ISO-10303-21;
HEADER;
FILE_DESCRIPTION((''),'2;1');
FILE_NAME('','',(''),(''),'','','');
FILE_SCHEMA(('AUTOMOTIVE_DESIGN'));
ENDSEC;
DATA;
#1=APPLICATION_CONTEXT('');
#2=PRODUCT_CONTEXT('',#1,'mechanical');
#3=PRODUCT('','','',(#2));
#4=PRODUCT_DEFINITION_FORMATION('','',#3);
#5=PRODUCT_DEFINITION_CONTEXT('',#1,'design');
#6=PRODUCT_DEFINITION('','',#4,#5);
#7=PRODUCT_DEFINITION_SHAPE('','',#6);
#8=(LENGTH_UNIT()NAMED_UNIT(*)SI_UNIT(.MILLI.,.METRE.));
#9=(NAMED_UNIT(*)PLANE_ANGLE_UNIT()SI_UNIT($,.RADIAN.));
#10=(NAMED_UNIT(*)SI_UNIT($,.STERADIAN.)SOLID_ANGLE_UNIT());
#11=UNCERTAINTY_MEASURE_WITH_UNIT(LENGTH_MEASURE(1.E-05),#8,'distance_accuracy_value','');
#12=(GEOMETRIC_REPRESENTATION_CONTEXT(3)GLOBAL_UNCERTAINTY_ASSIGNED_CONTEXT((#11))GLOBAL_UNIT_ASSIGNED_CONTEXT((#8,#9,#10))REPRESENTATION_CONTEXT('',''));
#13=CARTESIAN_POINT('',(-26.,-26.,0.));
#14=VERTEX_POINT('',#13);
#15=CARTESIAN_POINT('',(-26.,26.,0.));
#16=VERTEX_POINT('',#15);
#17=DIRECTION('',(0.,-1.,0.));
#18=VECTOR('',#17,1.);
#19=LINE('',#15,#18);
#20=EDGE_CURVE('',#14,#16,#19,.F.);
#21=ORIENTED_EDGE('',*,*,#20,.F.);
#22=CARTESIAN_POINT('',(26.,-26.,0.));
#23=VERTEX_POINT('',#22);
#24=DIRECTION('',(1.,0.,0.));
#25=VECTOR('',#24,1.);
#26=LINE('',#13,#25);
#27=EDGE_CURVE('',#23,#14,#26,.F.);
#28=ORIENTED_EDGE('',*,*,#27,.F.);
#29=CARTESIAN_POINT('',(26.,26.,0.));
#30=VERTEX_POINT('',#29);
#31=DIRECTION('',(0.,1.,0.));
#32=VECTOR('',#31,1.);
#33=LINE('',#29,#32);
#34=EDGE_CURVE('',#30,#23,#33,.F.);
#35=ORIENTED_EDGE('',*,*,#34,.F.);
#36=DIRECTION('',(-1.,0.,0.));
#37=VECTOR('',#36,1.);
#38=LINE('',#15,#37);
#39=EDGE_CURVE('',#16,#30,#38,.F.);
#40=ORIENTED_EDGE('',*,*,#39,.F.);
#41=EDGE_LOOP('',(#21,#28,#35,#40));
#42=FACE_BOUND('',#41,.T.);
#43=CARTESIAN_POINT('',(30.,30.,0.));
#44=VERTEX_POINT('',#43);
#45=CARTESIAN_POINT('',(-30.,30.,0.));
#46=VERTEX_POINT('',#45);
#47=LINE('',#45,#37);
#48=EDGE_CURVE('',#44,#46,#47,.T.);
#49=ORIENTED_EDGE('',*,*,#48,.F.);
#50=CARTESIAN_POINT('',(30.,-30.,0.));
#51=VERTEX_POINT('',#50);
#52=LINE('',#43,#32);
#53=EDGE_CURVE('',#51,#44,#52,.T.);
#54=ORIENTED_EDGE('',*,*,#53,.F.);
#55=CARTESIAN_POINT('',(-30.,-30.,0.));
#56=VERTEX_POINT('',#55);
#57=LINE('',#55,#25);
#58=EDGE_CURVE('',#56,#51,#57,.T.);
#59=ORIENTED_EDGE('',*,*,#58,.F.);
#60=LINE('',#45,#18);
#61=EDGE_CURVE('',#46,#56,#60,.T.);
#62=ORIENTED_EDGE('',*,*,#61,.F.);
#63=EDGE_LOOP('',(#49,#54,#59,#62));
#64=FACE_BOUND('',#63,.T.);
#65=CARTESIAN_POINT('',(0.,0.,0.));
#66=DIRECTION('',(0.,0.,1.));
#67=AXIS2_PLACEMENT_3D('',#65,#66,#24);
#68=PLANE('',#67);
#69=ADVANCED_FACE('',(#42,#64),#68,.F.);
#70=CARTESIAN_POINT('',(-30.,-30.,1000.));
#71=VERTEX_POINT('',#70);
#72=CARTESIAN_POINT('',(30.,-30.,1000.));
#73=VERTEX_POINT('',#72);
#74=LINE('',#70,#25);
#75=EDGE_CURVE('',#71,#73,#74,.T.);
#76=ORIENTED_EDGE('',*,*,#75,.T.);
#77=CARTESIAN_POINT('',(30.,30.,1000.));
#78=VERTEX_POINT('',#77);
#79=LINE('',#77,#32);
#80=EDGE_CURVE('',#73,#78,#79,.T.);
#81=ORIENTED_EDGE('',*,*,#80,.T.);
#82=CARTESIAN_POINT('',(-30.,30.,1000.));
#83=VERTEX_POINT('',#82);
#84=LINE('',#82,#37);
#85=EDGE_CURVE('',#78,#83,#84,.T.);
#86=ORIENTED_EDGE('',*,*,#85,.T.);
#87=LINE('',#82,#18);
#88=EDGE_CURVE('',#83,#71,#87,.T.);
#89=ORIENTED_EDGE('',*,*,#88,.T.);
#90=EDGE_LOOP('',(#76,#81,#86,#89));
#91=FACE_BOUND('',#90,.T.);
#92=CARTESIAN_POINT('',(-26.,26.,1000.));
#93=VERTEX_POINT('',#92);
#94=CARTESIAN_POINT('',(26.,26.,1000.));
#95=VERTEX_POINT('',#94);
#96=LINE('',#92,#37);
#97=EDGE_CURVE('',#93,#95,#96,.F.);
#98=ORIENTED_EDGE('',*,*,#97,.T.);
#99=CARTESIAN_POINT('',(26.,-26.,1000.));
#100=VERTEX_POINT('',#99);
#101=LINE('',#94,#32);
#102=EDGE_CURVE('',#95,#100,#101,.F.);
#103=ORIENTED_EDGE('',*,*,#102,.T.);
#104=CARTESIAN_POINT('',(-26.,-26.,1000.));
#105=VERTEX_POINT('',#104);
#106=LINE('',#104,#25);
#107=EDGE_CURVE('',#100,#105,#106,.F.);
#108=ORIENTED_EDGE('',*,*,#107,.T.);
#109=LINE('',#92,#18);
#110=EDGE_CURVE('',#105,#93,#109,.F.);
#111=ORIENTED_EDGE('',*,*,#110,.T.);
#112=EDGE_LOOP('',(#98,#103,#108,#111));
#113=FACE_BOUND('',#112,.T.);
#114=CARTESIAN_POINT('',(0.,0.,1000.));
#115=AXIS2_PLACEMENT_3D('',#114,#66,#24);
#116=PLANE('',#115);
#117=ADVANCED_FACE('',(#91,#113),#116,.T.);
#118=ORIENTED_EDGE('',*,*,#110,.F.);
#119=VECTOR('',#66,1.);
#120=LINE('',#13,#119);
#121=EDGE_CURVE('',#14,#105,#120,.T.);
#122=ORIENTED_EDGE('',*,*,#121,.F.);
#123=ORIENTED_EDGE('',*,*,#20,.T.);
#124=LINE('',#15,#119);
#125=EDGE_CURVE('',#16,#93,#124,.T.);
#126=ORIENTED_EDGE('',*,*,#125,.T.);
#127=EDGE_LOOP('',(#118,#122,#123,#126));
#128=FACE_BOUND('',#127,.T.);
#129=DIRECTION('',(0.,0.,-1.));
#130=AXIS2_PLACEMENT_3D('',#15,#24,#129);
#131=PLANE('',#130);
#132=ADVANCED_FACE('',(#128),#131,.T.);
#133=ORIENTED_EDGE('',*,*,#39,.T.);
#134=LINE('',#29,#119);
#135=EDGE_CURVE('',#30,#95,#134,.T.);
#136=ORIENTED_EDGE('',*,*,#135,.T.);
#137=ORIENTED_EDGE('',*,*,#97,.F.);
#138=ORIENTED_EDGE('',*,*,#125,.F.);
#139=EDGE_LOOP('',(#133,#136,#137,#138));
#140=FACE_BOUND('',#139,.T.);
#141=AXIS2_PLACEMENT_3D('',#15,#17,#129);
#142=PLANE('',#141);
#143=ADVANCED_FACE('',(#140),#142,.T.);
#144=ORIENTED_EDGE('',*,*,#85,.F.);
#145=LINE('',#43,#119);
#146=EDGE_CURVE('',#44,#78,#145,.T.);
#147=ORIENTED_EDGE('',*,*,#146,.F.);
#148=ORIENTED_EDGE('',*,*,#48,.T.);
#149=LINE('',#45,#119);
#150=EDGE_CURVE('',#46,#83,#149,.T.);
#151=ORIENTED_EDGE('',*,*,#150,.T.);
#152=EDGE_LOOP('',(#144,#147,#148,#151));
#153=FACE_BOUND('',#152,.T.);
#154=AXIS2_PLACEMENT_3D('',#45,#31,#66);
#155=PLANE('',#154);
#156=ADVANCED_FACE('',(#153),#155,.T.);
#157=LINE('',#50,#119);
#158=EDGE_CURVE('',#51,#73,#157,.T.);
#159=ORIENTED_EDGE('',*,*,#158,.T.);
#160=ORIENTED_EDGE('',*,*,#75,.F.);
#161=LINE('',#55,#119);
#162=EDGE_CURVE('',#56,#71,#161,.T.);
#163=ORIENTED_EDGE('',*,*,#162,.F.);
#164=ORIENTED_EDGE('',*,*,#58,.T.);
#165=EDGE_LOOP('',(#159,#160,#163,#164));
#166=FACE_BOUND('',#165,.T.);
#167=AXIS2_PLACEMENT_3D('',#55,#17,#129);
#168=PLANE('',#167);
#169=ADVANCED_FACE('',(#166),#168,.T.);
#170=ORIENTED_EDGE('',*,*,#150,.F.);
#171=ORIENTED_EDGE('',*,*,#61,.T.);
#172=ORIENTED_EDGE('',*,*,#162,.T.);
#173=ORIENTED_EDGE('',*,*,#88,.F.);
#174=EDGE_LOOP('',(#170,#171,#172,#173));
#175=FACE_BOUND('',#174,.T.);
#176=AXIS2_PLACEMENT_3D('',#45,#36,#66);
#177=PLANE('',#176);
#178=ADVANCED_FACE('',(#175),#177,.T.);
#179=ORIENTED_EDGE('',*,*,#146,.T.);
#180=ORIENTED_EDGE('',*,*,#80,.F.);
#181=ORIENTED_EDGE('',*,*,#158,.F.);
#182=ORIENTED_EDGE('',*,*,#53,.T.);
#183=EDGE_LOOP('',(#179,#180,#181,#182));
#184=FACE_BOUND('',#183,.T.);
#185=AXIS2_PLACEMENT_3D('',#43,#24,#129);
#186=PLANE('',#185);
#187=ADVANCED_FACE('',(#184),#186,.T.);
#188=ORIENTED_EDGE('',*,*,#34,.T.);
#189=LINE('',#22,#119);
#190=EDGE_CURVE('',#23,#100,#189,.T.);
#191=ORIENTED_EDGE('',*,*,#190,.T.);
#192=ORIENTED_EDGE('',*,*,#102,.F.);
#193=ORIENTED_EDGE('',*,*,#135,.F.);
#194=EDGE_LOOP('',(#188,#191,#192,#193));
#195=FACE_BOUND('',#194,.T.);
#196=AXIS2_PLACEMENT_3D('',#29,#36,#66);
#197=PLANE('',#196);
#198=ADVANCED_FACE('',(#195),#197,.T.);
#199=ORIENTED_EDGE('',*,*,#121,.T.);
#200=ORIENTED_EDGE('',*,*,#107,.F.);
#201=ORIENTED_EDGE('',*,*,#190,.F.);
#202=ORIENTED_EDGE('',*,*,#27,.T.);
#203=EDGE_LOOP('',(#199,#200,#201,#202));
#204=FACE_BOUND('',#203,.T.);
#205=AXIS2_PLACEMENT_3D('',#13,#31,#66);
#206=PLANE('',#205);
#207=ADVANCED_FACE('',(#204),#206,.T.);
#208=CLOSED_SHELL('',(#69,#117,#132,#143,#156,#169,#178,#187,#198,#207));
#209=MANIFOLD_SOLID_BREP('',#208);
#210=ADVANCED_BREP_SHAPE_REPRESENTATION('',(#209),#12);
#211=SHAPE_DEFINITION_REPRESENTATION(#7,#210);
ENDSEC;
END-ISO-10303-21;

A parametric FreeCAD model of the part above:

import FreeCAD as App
import Part
import Sketcher
from FreeCAD import Vector


def add_polygon(sketch, points):
    """Adds a closed chain of lines whose ends are joined by coincident constraints."""
    first, n = sketch.GeometryCount, len(points)
    for a, b in zip(points, points[1:] + points[:1]):
        sketch.addGeometry(Part.LineSegment(App.Vector(*a, 0), App.Vector(*b, 0)), False)
    for i in range(n):
        sketch.addConstraint(Sketcher.Constraint("Coincident", first + i, 2, first + (i + 1) % n, 1))

doc = App.newDocument("Part")
params = doc.addObject("Spreadsheet::Sheet", "Params")
for row, (alias, value) in enumerate([
    ("sketch1_width", "60 mm"),
    ("sketch1_width2", "52 mm"),
], start=1):
    params.set(f"A{row}", alias)
    params.set(f"B{row}", "=" + value)
    params.setAlias(f"B{row}", alias)

body = doc.addObject("PartDesign::Body", "Body")

# Sketch on XY plane
sketch1 = doc.addObject("Sketcher::SketchObject", "Sketch")
body.addObject(sketch1)
sketch1.AttachmentSupport = (doc.XY_Plane, [""])
sketch1.MapMode = "FlatFace"
add_polygon(sketch1, [(-30, 30), (-30, -30), (30, -30), (30, 30)])  # lines 0-3
add_polygon(sketch1, [(26, -26), (-26, -26), (-26, 26), (26, 26)])  # lines 4-7
sketch1.addConstraint([
    Sketcher.Constraint("Vertical", 0),
    Sketcher.Constraint("Horizontal", 1),
    Sketcher.Constraint("Vertical", 2),
    Sketcher.Constraint("Horizontal", 3),
    Sketcher.Constraint("Horizontal", 4),
    Sketcher.Constraint("Vertical", 5),
    Sketcher.Constraint("Horizontal", 6),
    Sketcher.Constraint("Vertical", 7),
    Sketcher.Constraint("Symmetric", 0, 2, 2, 2, -1, 1),
    Sketcher.Constraint("Symmetric", 4, 2, 6, 2, -1, 1),
    Sketcher.Constraint("Equal", 3, 0),
    Sketcher.Constraint("Equal", 6, 5),
    Sketcher.Constraint("DistanceX", 1, 1, 1, 2, 60.0),
    Sketcher.Constraint("DistanceX", 4, 2, 4, 1, 52.0),
])
sketch1.setExpression("Constraints[20]", "Params.sketch1_width")
sketch1.setExpression("Constraints[21]", "Params.sketch1_width2")

# Sketch on XZ plane
sketch2 = doc.addObject("Sketcher::SketchObject", "Sketch001")
body.addObject(sketch2)
sketch2.AttachmentSupport = (doc.XZ_Plane, [""])
sketch2.MapMode = "FlatFace"
sketch2.addGeometry(Part.BSplineCurve([Vector(0, 0, 0), Vector(0, 1000, 0)], [2, 2], [0, 1], False, 1, [1, 1], False), False)
sketch2.addConstraint(Sketcher.Constraint("Block", 0))
doc.recompute()

additivepipe = doc.addObject("PartDesign::AdditivePipe", "AdditivePipe")
body.addObject(additivepipe)
additivepipe.Profile = sketch1
additivepipe.Spine = (sketch2, ["Edge1"])

doc.recompute()
